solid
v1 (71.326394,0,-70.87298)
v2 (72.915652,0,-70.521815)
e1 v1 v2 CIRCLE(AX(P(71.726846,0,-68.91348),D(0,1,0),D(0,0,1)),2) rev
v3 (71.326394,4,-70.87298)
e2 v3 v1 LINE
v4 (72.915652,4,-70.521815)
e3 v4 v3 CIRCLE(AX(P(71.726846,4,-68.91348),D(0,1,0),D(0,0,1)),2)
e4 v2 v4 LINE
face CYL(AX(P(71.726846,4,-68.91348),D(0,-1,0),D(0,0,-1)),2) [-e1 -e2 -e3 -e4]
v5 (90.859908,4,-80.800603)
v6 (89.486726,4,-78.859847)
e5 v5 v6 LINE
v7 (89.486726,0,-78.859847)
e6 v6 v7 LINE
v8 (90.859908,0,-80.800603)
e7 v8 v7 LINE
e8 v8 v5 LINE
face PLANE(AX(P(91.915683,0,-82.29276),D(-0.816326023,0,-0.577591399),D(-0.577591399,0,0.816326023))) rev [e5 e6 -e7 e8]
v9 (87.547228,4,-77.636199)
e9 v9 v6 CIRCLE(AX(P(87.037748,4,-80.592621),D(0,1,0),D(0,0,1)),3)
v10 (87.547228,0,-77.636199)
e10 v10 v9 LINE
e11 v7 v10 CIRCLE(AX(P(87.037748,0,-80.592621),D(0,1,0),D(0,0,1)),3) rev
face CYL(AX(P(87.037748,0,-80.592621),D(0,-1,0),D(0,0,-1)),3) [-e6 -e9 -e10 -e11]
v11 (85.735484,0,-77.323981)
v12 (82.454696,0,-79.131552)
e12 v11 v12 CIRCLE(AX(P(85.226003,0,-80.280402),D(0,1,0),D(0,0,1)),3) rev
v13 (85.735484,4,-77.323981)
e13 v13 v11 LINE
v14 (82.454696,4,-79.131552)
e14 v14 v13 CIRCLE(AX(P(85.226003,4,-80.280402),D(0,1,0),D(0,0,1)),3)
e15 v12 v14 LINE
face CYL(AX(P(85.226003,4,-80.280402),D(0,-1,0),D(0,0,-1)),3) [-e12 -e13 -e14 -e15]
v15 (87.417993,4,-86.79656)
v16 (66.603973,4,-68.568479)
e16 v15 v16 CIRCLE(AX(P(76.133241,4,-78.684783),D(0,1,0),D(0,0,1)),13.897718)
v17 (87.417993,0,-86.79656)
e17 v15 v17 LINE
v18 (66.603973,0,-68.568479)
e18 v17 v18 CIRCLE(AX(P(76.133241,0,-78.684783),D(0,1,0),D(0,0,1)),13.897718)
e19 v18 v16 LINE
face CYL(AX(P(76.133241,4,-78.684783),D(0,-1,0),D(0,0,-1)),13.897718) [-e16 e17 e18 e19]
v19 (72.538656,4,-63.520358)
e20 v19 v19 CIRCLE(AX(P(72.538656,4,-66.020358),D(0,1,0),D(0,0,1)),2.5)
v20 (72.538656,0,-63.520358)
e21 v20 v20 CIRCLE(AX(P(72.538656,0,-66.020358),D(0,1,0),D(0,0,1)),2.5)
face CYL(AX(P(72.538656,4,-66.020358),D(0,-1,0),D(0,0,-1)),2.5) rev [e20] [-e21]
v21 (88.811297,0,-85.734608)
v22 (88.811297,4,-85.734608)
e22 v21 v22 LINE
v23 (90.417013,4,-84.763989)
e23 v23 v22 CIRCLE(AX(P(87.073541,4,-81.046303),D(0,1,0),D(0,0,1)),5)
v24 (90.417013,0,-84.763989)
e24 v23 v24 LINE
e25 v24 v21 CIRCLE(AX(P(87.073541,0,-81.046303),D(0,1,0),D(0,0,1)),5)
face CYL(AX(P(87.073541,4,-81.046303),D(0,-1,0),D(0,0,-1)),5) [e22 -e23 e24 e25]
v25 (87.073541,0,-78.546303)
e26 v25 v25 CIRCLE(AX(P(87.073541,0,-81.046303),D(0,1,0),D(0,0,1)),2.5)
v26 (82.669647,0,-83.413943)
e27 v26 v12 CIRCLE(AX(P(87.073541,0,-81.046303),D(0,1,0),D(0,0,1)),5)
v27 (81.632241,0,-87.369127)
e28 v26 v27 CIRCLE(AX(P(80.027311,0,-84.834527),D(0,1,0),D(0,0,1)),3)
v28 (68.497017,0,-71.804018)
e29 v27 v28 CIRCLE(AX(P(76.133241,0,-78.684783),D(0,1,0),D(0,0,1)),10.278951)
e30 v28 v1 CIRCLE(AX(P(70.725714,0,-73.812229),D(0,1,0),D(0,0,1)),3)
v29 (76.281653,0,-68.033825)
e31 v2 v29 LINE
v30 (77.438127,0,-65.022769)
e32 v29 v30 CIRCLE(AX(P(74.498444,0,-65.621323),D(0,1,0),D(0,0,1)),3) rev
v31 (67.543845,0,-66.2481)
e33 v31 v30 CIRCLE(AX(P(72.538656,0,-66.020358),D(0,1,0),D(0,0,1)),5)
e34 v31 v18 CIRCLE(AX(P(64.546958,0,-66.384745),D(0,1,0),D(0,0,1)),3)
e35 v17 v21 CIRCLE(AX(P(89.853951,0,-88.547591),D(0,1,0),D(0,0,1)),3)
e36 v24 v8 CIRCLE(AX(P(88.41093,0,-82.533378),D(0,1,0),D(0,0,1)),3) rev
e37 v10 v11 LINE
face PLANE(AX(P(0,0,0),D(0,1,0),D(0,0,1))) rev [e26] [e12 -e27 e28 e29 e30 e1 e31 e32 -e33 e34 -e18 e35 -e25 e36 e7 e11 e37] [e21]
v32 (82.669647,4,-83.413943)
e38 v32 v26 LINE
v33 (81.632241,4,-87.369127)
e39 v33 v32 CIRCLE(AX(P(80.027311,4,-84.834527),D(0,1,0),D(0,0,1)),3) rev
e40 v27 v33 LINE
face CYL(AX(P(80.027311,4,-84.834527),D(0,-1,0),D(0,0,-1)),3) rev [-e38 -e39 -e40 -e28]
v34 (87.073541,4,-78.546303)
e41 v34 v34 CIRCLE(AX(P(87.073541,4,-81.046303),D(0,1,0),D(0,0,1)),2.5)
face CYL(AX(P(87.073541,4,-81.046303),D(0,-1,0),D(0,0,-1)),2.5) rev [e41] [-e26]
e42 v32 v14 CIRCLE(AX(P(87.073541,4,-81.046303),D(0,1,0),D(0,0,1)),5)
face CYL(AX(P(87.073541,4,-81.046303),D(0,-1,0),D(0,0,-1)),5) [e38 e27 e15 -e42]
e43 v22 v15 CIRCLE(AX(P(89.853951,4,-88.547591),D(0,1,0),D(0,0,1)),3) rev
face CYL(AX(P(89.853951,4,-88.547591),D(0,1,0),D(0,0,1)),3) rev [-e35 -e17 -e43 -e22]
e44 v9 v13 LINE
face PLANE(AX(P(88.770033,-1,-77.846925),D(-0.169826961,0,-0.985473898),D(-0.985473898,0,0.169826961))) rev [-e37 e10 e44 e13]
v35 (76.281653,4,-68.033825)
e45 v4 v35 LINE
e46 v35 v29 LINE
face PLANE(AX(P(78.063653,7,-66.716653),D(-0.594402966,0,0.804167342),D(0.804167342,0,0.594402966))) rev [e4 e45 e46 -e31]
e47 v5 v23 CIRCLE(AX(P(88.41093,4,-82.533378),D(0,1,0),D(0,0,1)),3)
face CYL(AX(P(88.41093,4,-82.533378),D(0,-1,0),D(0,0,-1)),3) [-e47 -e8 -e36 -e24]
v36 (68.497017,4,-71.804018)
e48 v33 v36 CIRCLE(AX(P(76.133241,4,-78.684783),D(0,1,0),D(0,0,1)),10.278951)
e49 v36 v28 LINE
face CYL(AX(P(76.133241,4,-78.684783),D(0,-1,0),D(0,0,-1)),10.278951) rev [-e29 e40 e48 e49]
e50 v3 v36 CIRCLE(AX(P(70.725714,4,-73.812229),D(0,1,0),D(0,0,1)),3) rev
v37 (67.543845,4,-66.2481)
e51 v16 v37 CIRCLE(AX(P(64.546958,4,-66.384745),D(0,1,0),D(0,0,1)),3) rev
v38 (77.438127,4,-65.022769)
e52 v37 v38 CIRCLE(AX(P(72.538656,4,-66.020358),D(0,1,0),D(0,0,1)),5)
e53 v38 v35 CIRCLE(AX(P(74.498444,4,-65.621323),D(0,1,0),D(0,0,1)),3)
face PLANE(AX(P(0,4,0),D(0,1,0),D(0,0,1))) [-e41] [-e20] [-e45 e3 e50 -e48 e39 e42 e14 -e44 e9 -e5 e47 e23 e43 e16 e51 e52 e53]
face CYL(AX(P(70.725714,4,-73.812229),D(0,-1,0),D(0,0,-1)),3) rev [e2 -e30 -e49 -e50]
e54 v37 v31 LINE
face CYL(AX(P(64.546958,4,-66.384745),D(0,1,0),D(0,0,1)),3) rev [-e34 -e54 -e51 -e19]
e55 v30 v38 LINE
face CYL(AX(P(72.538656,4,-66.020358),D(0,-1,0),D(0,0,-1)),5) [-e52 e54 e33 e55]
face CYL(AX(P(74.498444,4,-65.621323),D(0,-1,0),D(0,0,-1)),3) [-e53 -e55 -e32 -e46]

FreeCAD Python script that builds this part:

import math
import FreeCAD as App
import Part
import Sketcher
Q = App.Units.Quantity


def edges_at(feature, points):
    """Names of the edges that pass closest to the given points."""
    edges = feature.Shape.Edges
    near = lambda p: min(range(len(edges)), key=lambda i: edges[i].distToShape(Part.Vertex(*p))[0])
    return sorted({f"Edge{near(p) + 1}" for p in points})

doc = App.newDocument("Part")
body = doc.addObject("PartDesign::Body", "Body")

# Sketch on XZ plane
sketch1 = body.newObject("Sketcher::SketchObject", "Sketch")
sketch1.AttachmentSupport = (doc.getObject("XZ_Plane"), [""])
sketch1.MapMode = "FlatFace"
sketch1.addGeometry(Part.ArcOfCircle(Part.Circle(App.Vector(76.1, -78.7, 0), App.Vector(0, 0, 1), 10.3), math.radians(126), math.radians(321)), False)
sketch1.addGeometry(Part.ArcOfCircle(Part.Circle(App.Vector(87.1, -81, 0), App.Vector(0, 0, 1), 5), math.radians(-80), math.radians(234)), False)
sketch1.addGeometry(Part.ArcOfCircle(Part.Circle(App.Vector(76.1, -78.7, 0), App.Vector(0, 0, 1), 13.9), math.radians(127), math.radians(328)), False)
sketch1.addGeometry(Part.ArcOfCircle(Part.Circle(App.Vector(72.5, -66, 0), App.Vector(0, 0, 1), 5), math.radians(-119), math.radians(198)), False)
sketch1.addGeometry(Part.Circle(App.Vector(72.5, -66, 0), App.Vector(0, 0, 1), 2.5), False)
sketch1.addGeometry(Part.Circle(App.Vector(87.1, -81, 0), App.Vector(0, 0, 1), 2.5), False)
sketch1.addConstraint(Sketcher.Constraint("Coincident", 0, 2, 1, 2))
sketch1.addConstraint(Sketcher.Constraint("Coincident", 1, 1, 2, 2))
sketch1.addConstraint(Sketcher.Constraint("Coincident", 2, 1, 3, 2))
sketch1.addConstraint(Sketcher.Constraint("Coincident", 3, 1, 0, 1))
sketch1.addConstraint(Sketcher.Constraint("Coincident", 2, 3, 0, 3))
sketch1.addConstraint(Sketcher.Constraint("Coincident", 4, 3, 3, 3))
sketch1.addConstraint(Sketcher.Constraint("Coincident", 5, 3, 1, 3))
sketch1.addConstraint(Sketcher.Constraint("Equal", 1, 3))
sketch1.addConstraint(Sketcher.Constraint("Equal", 4, 5))
sketch1.addConstraint(Sketcher.Constraint("Diameter", 4, Q("5 mm")))
sketch1.addConstraint(Sketcher.Constraint("Radius", 1, Q("5 mm")))
sketch1.addConstraint(Sketcher.Constraint("Radius", 0, Q("10.278951 mm")))
sketch1.addConstraint(Sketcher.Constraint("Radius", 2, Q("13.897718 mm")))
sketch1.addConstraint(Sketcher.Constraint("DistanceX", 0, 3, 1, 3, Q("10.9403 mm")))
sketch1.addConstraint(Sketcher.Constraint("DistanceY", 1, 1, 1, 3, Q("4.918702 mm")))
sketch1.addConstraint(Sketcher.Constraint("DistanceY", 2, 1, 3, 3, Q("1.552799 mm")))
sketch1.addConstraint(Sketcher.Constraint("DistanceX", 3, 1, 0, 3, Q("6.050799 mm")))
sketch1.addConstraint(Sketcher.Constraint("DistanceX", -1, 1, 0, 3, Q("76.133241 mm")))
sketch1.addConstraint(Sketcher.Constraint("DistanceY", 3, 3, -1, 1, Q("66.020358 mm")))
pad1 = body.newObject("PartDesign::Pad", "Pad")
pad1.Profile = sketch1
pad1.Length = 4
pad1.Reversed = True
doc.recompute()

fillet = body.newObject("PartDesign::Fillet", "Fillet")
fillet.Base = (pad1, edges_at(pad1, [
    (84.158, 2, -85.108),
    (70.082, 2, -70.375),
    (67.786, 2, -67.573),
    (87.972, 2, -85.965),
]))
fillet.Radius = 3

# Sketch on XZ plane
sketch2 = body.newObject("Sketcher::SketchObject", "Sketch001")
sketch2.AttachmentSupport = (doc.getObject("XZ_Plane"), [""])
sketch2.MapMode = "FlatFace"
sketch2.addGeometry(Part.LineSegment(App.Vector(78.1, -66.7, 0), App.Vector(72.1, -71.1, 0)), False)
sketch2.addGeometry(Part.LineSegment(App.Vector(72.1, -71.1, 0), App.Vector(73.1, -72.4, 0)), False)
sketch2.addGeometry(Part.LineSegment(App.Vector(73.1, -72.4, 0), App.Vector(79, -68, 0)), False)
sketch2.addGeometry(Part.LineSegment(App.Vector(79, -68, 0), App.Vector(78.1, -66.7, 0)), False)
sketch2.addConstraint(Sketcher.Constraint("Coincident", 0, 2, 1, 1))
sketch2.addConstraint(Sketcher.Constraint("Coincident", 1, 2, 2, 1))
sketch2.addConstraint(Sketcher.Constraint("Coincident", 2, 2, 3, 1))
sketch2.addConstraint(Sketcher.Constraint("Coincident", 3, 2, 0, 1))
sketch2.addConstraint(Sketcher.Constraint("Perpendicular", 0, 1))
sketch2.addConstraint(Sketcher.Constraint("Perpendicular", 1, 2))
sketch2.addConstraint(Sketcher.Constraint("Perpendicular", 2, 3))
sketch2.addConstraint(Sketcher.Constraint("DistanceY", 1, 2, 0, 2, Q("1.2612 mm")))
sketch2.addConstraint(Sketcher.Constraint("Distance", 0, Q("7.360021 mm")))
sketch2.addConstraint(Sketcher.Constraint("Distance", 1, Q("1.568331 mm")))
sketch2.addConstraint(Sketcher.Constraint("DistanceY", 0, 2, -1, 1, Q("71.091472 mm")))
sketch2.addConstraint(Sketcher.Constraint("DistanceX", -1, 1, 0, 2, Q("72.144964 mm")))
pocket1 = body.newObject("PartDesign::Pocket", "Pocket")
pocket1.Profile = sketch2
pocket1.Length = 7
doc.recompute()

fillet2 = body.newObject("PartDesign::Fillet", "Fillet001")
fillet2.Base = (pocket1, edges_at(pocket1, [(77.395, 2, -67.211)]))
fillet2.Radius = 3
doc.recompute()

fillet3 = body.newObject("PartDesign::Fillet", "Fillet002")
fillet3.Base = (fillet2, edges_at(fillet2, [(72.252, 2, -71.012)]))
fillet3.Radius = 2

# Sketch on XZ plane
sketch3 = body.newObject("Sketcher::SketchObject", "Sketch002")
sketch3.AttachmentSupport = (doc.getObject("XZ_Plane"), [""])
sketch3.MapMode = "FlatFace"
sketch3.AttachmentOffset = App.Placement(App.Vector(0, 0, -4), App.Rotation())
sketch3.addGeometry(Part.LineSegment(App.Vector(91.9, -82.3, 0), App.Vector(87.5, -76.1, 0)), False)
sketch3.addGeometry(Part.LineSegment(App.Vector(87.5, -76.1, 0), App.Vector(89.2, -74.6, 0)), False)
sketch3.addGeometry(Part.LineSegment(App.Vector(89.2, -74.6, 0), App.Vector(94, -81.1, 0)), False)
sketch3.addGeometry(Part.LineSegment(App.Vector(94, -81.1, 0), App.Vector(91.9, -82.3, 0)), False)
sketch3.addConstraint(Sketcher.Constraint("Coincident", 0, 2, 1, 1))
sketch3.addConstraint(Sketcher.Constraint("Coincident", 1, 2, 2, 1))
sketch3.addConstraint(Sketcher.Constraint("Coincident", 2, 2, 3, 1))
sketch3.addConstraint(Sketcher.Constraint("Coincident", 3, 2, 0, 1))
sketch3.addConstraint(Sketcher.Constraint("Distance", 0, Q("7.628591 mm")))
sketch3.addConstraint(Sketcher.Constraint("Distance", 3, Q("2.448842 mm")))
sketch3.addConstraint(Sketcher.Constraint("DistanceY", 1, 2, -1, 1, Q("74.615528 mm")))
sketch3.addConstraint(Sketcher.Constraint("DistanceY", 3, 2, -1, 1, Q("82.29276 mm")))
sketch3.addConstraint(Sketcher.Constraint("DistanceX", 0, 2, 1, 2, Q("1.739129 mm")))
sketch3.addConstraint(Sketcher.Constraint("DistanceX", 1, 2, 2, 2, Q("4.797259 mm")))
sketch3.addConstraint(Sketcher.Constraint("DistanceY", 2, 2, 0, 2, Q("5.01946 mm")))
sketch3.addConstraint(Sketcher.Constraint("DistanceX", -1, 1, 0, 2, Q("87.509475 mm")))
pocket2 = body.newObject("PartDesign::Pocket", "Pocket001")
pocket2.Profile = sketch3
pocket2.Length = 4
pocket2.Reversed = True
doc.recompute()

fillet4 = body.newObject("PartDesign::Fillet", "Fillet003")
fillet4.Base = (pocket2, edges_at(pocket2, [(91.916, 2, -82.293), (87.509, 2, -76.065)]))
fillet4.Radius = 3

# Sketch on XZ plane
sketch4 = body.newObject("Sketcher::SketchObject", "Sketch003")
sketch4.AttachmentSupport = (doc.getObject("XZ_Plane"), [""])
sketch4.MapMode = "FlatFace"
sketch4.AttachmentOffset = App.Placement(App.Vector(0, 0, -4), App.Rotation())
sketch4.addGeometry(Part.LineSegment(App.Vector(88.8, -77.8, 0), App.Vector(84.1, -77, 0)), False)
sketch4.addGeometry(Part.LineSegment(App.Vector(84.1, -77, 0), App.Vector(84.7, -75.3, 0)), False)
sketch4.addGeometry(Part.LineSegment(App.Vector(84.7, -75.3, 0), App.Vector(89.1, -76, 0)), False)
sketch4.addGeometry(Part.LineSegment(App.Vector(89.1, -76, 0), App.Vector(88.8, -77.8, 0)), False)
sketch4.addConstraint(Sketcher.Constraint("Coincident", 0, 2, 1, 1))
sketch4.addConstraint(Sketcher.Constraint("Coincident", 1, 2, 2, 1))
sketch4.addConstraint(Sketcher.Constraint("Coincident", 2, 2, 3, 1))
sketch4.addConstraint(Sketcher.Constraint("Coincident", 3, 2, 0, 1))
sketch4.addConstraint(Sketcher.Constraint("Perpendicular", 0, 3))
sketch4.addConstraint(Sketcher.Constraint("Distance", 0, Q("4.756101 mm")))
sketch4.addConstraint(Sketcher.Constraint("DistanceX", 1, 2, 3, 2, Q("4.110701 mm")))
sketch4.addConstraint(Sketcher.Constraint("DistanceX", -1, 1, 0, 2, Q("84.08302 mm")))
sketch4.addConstraint(Sketcher.Constraint("DistanceY", 0, 2, -1, 1, Q("77.039211 mm")))
sketch4.addConstraint(Sketcher.Constraint("DistanceY", 2, 2, -1, 1, Q("75.986759 mm")))
sketch4.addConstraint(Sketcher.Constraint("DistanceY", 2, 2, 1, 2, Q("0.640632 mm")))
sketch4.addConstraint(Sketcher.Constraint("Distance", 1, Q("1.788482 mm")))
pocket3 = body.newObject("PartDesign::Pocket", "Pocket002")
pocket3.Profile = sketch4
pocket3.Length = 5
pocket3.Reversed = True
doc.recompute()

fillet5 = body.newObject("PartDesign::Fillet", "Fillet004")
fillet5.Base = (pocket3, edges_at(pocket3, [(88.77, 2, -77.847), (84.083, 2, -77.039)]))
fillet5.Radius = 3

doc.recompute()
